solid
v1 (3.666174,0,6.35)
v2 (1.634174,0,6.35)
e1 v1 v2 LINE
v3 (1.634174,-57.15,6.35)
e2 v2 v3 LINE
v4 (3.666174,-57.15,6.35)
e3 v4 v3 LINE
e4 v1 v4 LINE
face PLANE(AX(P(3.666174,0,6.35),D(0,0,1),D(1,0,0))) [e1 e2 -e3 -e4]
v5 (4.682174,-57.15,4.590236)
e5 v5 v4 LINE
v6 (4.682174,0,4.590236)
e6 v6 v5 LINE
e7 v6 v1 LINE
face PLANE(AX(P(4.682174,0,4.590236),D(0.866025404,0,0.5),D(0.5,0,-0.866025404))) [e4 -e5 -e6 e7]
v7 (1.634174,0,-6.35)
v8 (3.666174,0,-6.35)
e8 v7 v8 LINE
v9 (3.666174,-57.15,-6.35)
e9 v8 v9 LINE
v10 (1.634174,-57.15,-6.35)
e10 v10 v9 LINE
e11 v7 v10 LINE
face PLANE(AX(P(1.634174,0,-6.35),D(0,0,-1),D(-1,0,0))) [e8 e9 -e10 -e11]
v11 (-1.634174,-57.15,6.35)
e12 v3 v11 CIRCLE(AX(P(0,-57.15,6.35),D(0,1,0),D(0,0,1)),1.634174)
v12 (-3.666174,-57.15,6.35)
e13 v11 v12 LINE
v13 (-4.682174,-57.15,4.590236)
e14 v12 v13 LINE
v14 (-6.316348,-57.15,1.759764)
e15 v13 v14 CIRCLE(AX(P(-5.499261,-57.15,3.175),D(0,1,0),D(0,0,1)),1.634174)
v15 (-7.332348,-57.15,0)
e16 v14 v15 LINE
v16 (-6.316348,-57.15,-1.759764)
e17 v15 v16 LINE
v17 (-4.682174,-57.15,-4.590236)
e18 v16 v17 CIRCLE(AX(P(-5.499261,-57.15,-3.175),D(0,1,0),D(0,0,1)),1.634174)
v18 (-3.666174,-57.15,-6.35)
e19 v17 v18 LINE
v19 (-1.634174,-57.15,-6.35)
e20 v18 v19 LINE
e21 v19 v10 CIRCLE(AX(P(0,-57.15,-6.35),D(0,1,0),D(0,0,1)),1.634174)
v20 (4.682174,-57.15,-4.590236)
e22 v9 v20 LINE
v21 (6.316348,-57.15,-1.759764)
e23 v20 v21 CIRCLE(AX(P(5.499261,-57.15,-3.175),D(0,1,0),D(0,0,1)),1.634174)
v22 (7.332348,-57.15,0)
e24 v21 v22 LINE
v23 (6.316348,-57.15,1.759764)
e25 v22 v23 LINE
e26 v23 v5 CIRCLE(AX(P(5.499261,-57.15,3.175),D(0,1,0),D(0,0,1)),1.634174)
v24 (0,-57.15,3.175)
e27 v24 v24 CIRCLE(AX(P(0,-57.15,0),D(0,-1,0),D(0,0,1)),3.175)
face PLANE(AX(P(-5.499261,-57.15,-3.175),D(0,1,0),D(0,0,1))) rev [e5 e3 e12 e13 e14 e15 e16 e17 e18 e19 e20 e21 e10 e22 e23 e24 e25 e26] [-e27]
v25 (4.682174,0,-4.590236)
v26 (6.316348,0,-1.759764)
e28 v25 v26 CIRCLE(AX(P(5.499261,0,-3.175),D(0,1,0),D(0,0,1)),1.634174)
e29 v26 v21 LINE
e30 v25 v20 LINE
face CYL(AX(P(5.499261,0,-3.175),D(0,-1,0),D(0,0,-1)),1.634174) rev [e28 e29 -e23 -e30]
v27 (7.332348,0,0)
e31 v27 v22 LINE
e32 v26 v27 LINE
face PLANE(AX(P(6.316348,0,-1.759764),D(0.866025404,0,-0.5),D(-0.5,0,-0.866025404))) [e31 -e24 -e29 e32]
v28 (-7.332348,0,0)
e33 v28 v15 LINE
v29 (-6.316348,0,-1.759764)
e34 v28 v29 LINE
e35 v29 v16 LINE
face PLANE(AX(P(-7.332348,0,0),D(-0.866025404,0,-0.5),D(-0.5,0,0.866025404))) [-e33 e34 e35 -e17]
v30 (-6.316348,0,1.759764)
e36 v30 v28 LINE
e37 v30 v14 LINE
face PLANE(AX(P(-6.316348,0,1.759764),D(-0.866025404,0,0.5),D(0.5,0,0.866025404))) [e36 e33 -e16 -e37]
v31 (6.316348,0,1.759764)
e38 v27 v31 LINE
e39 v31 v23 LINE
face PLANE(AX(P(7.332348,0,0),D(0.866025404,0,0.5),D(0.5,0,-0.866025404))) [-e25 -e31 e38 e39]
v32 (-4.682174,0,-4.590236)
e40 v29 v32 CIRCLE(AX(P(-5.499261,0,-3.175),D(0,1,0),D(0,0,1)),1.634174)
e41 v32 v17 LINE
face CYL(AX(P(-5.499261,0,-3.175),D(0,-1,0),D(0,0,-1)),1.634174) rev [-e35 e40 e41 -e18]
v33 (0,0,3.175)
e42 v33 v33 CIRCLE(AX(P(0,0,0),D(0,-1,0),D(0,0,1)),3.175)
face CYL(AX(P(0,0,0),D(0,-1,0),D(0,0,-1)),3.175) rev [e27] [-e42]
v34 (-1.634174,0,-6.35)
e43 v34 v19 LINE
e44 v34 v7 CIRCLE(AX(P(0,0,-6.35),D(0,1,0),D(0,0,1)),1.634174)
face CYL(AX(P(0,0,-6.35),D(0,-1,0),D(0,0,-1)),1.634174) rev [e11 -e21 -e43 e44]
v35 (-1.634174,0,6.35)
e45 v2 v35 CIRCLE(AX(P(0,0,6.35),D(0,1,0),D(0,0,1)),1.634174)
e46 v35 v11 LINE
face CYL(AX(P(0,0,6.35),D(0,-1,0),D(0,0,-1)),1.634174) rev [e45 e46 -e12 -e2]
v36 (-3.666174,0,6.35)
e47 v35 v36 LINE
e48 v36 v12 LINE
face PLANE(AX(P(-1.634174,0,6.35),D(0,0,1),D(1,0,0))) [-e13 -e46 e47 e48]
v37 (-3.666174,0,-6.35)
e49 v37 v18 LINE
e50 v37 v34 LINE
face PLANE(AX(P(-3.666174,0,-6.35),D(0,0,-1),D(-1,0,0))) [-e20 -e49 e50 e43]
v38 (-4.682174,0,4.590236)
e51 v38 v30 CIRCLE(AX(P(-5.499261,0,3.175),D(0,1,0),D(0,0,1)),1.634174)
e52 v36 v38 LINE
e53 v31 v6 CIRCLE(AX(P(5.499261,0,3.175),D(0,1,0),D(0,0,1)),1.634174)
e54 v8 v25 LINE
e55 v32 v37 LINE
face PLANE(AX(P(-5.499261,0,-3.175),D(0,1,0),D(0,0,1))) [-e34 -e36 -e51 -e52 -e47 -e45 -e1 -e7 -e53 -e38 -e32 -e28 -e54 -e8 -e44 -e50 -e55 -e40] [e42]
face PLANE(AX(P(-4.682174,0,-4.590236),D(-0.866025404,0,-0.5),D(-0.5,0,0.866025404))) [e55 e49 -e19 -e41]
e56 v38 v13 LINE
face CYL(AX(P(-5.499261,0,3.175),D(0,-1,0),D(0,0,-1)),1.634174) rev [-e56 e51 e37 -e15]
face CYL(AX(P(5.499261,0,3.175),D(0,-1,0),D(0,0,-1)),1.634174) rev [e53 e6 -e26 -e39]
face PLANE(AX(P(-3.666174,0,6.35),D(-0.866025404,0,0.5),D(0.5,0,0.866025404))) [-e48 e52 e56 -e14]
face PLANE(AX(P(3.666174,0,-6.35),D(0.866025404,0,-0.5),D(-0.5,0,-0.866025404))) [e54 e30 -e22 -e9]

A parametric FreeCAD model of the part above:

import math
import FreeCAD as App
import Part
import Sketcher

V = App.Vector
Q = App.Units.Quantity

doc = App.newDocument("Part")
body = doc.addObject("PartDesign::Body", "Body")

# Sketch on XZ plane
sketch1 = body.newObject("Sketcher::SketchObject", "Sketch")
sketch1.AttachmentSupport = (doc.getObject("XZ_Plane"), [""])
sketch1.MapMode = "FlatFace"
sketch1.AttachmentOffset = App.Placement(V(0, 0, 2.25 * 25.4), App.Rotation())
sketch1.addGeometry([
    Part.LineSegment(V(-4.7, -4.6, 0), V(-3.7, -6.3, 0)),  # 0
    Part.LineSegment(V(-3.7, -6.3, 0), V(-1.6, -6.3, 0)),  # 1
    Part.ArcOfCircle(Part.Circle(V(0, -6.3, 0), V(0, 0, 1), 1.6), math.radians(0), math.radians(180)),  # 2
    Part.LineSegment(V(1.6, -6.3, 0), V(3.7, -6.3, 0)),  # 3
    Part.LineSegment(V(3.7, -6.3, 0), V(4.7, -4.6, 0)),  # 4
    Part.ArcOfCircle(Part.Circle(V(5.5, -3.2, 0), V(0, 0, 1), 1.6), math.radians(60), math.radians(240)),  # 5
    Part.LineSegment(V(6.3, -1.8, 0), V(7.3, 0, 0)),  # 6
    Part.LineSegment(V(7.3, 0, 0), V(6.3, 1.8, 0)),  # 7
    Part.ArcOfCircle(Part.Circle(V(5.5, 3.2, 0), V(0, 0, 1), 1.6), math.radians(120), math.radians(300)),  # 8
    Part.LineSegment(V(4.7, 4.6, 0), V(3.7, 6.3, 0)),  # 9
    Part.LineSegment(V(3.7, 6.3, 0), V(1.6, 6.3, 0)),  # 10
    Part.ArcOfCircle(Part.Circle(V(0, 6.3, 0), V(0, 0, 1), 1.6), math.radians(180), math.radians(360)),  # 11
    Part.LineSegment(V(-1.6, 6.3, 0), V(-3.7, 6.3, 0)),  # 12
    Part.LineSegment(V(-3.7, 6.3, 0), V(-4.7, 4.6, 0)),  # 13
    Part.ArcOfCircle(Part.Circle(V(-5.5, 3.2, 0), V(0, 0, 1), 1.6), math.radians(-120), math.radians(60)),  # 14
    Part.LineSegment(V(-6.3, 1.8, 0), V(-7.3, 0, 0)),  # 15
    Part.LineSegment(V(-7.3, 0, 0), V(-6.3, -1.8, 0)),  # 16
    Part.ArcOfCircle(Part.Circle(V(-5.5, -3.2, 0), V(0, 0, 1), 1.6), math.radians(-60), math.radians(120)),  # 17
    Part.Circle(V(0, 0, 0), V(0, 0, 1), 3.2),  # 18
], False)
sketch1.addConstraint([
    Sketcher.Constraint("Coincident", 0, 2, 1, 1),
    Sketcher.Constraint("Coincident", 1, 2, 2, 2),
    Sketcher.Constraint("Coincident", 2, 1, 3, 1),
    Sketcher.Constraint("Coincident", 3, 2, 4, 1),
    Sketcher.Constraint("Coincident", 4, 2, 5, 2),
    Sketcher.Constraint("Coincident", 5, 1, 6, 1),
    Sketcher.Constraint("Coincident", 6, 2, 7, 1),
    Sketcher.Constraint("Coincident", 7, 2, 8, 2),
    Sketcher.Constraint("Coincident", 8, 1, 9, 1),
    Sketcher.Constraint("Coincident", 9, 2, 10, 1),
    Sketcher.Constraint("Coincident", 10, 2, 11, 2),
    Sketcher.Constraint("Coincident", 11, 1, 12, 1),
    Sketcher.Constraint("Coincident", 12, 2, 13, 1),
    Sketcher.Constraint("Coincident", 13, 2, 14, 2),
    Sketcher.Constraint("Coincident", 14, 1, 15, 1),
    Sketcher.Constraint("Coincident", 15, 2, 16, 1),
    Sketcher.Constraint("Coincident", 16, 2, 17, 2),
    Sketcher.Constraint("Coincident", 17, 1, 0, 1),
    Sketcher.Constraint("Horizontal", 1),
    Sketcher.Constraint("Horizontal", 3),
    Sketcher.Constraint("Horizontal", 10),
    Sketcher.Constraint("Horizontal", 12),
    Sketcher.Constraint("Coincident", 18, 3, -1, 1),
    Sketcher.Constraint("Equal", 2, 5),
    Sketcher.Constraint("Equal", 5, 8),
    Sketcher.Constraint("Equal", 8, 11),
    Sketcher.Constraint("Equal", 11, 14),
    Sketcher.Constraint("Equal", 14, 17),
    Sketcher.Constraint("Symmetric", 2, 3, 11, 3, -1, 1),
    Sketcher.Constraint("Symmetric", 5, 3, 14, 3, -1, 1),
    Sketcher.Constraint("Symmetric", 8, 3, 17, 3, -1, 1),
    Sketcher.Constraint("Symmetric", 0, 2, 9, 2, -1, 1),
    Sketcher.Constraint("Symmetric", 3, 2, 12, 2, -1, 1),
    Sketcher.Constraint("Symmetric", 6, 2, 15, 2, -1, 1),
    Sketcher.Constraint("Symmetric", 8, 3, 14, 3, -2),
    Sketcher.Constraint("Symmetric", 1, 2, 2, 1, -2),
    Sketcher.Constraint("PointOnObject", 6, 2, -1),
    Sketcher.Constraint("Parallel", 4, 6),
    Sketcher.Constraint("Parallel", 0, 7),
    Sketcher.Constraint("Parallel", 7, 9),
    Sketcher.Constraint("Parallel", 6, 13),
    Sketcher.Constraint("Parallel", 13, 15),
    Sketcher.Constraint("Parallel", 9, 16),
    Sketcher.Constraint("Horizontal", 2, 3, 0, 2),
    Sketcher.Constraint("Horizontal", 8, 1, 13, 2),
    Sketcher.Constraint("Horizontal", 7, 2, 14, 1),
    Sketcher.Constraint("Equal", 4, 6),
    Sketcher.Constraint("Diameter", 18, Q("0.25 in")),
    Sketcher.Constraint("Angle", 0, Q("-60 deg")),
    Sketcher.Constraint("DistanceX", 1, 1, 1, 2, Q("0.08 in")),
    Sketcher.Constraint("DistanceY", 2, 3, 11, 3, Q("0.5 in")),
    Sketcher.Constraint("Distance", 0, Q("0.08 in")),
    Sketcher.Constraint("DistanceY", 5, 3, 8, 3, Q("0.25 in")),
    Sketcher.Constraint("Radius", 2, 1.634174),
])
pad1 = body.newObject("PartDesign::Pad", "Pad")
pad1.Profile = sketch1
pad1.Length = Q("2.25 in")
pad1.Reversed = True

doc.recompute()
